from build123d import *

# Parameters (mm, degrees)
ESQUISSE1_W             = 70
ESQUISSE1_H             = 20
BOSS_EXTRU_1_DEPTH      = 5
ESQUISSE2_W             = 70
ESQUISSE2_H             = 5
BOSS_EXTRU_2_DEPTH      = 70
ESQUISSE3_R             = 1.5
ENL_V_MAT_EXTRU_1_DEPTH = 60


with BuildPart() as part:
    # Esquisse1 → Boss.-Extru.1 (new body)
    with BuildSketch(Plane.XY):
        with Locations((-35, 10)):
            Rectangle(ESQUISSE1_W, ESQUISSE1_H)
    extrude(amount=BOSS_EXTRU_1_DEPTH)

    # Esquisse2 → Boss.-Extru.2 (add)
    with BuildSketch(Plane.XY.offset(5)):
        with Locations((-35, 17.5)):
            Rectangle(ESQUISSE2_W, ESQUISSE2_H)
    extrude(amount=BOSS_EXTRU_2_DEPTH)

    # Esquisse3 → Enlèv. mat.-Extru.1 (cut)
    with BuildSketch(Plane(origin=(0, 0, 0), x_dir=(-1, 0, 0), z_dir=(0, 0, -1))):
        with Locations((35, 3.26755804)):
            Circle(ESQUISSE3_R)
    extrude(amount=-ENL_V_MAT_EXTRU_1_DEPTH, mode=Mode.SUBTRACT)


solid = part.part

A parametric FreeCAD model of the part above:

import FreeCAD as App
import Part
import Sketcher
from FreeCAD import Vector


def add_polygon(sketch, points):
    """Adds a closed chain of lines whose ends are joined by coincident constraints."""
    first, n = sketch.GeometryCount, len(points)
    for a, b in zip(points, points[1:] + points[:1]):
        sketch.addGeometry(Part.LineSegment(App.Vector(*a, 0), App.Vector(*b, 0)), False)
    for i in range(n):
        sketch.addConstraint(Sketcher.Constraint("Coincident", first + i, 2, first + (i + 1) % n, 1))

doc = App.newDocument("Part")
body = doc.addObject("PartDesign::Body", "Body")

# Sketch on XY plane
sketch1 = doc.addObject("Sketcher::SketchObject", "Sketch")
body.addObject(sketch1)
sketch1.AttachmentSupport = (doc.XY_Plane, [""])
sketch1.MapMode = "FlatFace"
add_polygon(sketch1, [(-70, 20), (-70, 0), (0, 0), (0, 20)])  # lines 0-3
sketch1.addConstraint([
    Sketcher.Constraint("Vertical", 0),
    Sketcher.Constraint("Horizontal", 1),
    Sketcher.Constraint("Vertical", 2),
    Sketcher.Constraint("Horizontal", 3),
    Sketcher.Constraint("Coincident", 1, 2, -1, 1),
    Sketcher.Constraint("DistanceX", 1, 1, 1, 2, 70.0),
    Sketcher.Constraint("DistanceY", 0, 2, 0, 1, 20.0),
])
pad1 = doc.addObject("PartDesign::Pad", "Pad")
body.addObject(pad1)
pad1.Profile = sketch1
pad1.Length = 5

# Sketch on XY plane
sketch2 = doc.addObject("Sketcher::SketchObject", "Sketch001")
body.addObject(sketch2)
sketch2.AttachmentSupport = (doc.XY_Plane, [""])
sketch2.MapMode = "FlatFace"
sketch2.AttachmentOffset = App.Placement(Vector(0, 0, 5), App.Rotation())
add_polygon(sketch2, [(-70, 20), (-70, 15), (0, 15), (0, 20)])  # lines 0-3
sketch2.addConstraint([
    Sketcher.Constraint("Vertical", 0),
    Sketcher.Constraint("Horizontal", 1),
    Sketcher.Constraint("Vertical", 2),
    Sketcher.Constraint("Horizontal", 3),
    Sketcher.Constraint("PointOnObject", 1, 2, -2),
    Sketcher.Constraint("DistanceX", 1, 1, 1, 2, 70.0),
    Sketcher.Constraint("DistanceY", 0, 2, 0, 1, 5.0),
    Sketcher.Constraint("DistanceY", -1, 1, 0, 2, 15.0),
])
pad2 = doc.addObject("PartDesign::Pad", "Pad001")
body.addObject(pad2)
pad2.Profile = sketch2
pad2.Length = 70

# Sketch on XY plane
sketch3 = doc.addObject("Sketcher::SketchObject", "Sketch002")
body.addObject(sketch3)
sketch3.AttachmentSupport = (doc.XY_Plane, [""])
sketch3.MapMode = "FlatFace"
sketch3.addGeometry(Part.Circle(Vector(-35, 3.267558, 0), Vector(0, 0, 1), 1.5), False)
sketch3.addConstraint([
    Sketcher.Constraint("Diameter", 0, 3.0),
    Sketcher.Constraint("DistanceX", 0, 3, -1, 1, 35.0),
    Sketcher.Constraint("DistanceY", -1, 1, 0, 3, 3.267558),
])
pocket1 = doc.addObject("PartDesign::Pocket", "Pocket")
body.addObject(pocket1)
pocket1.Profile = sketch3
pocket1.Length = 60
pocket1.Reversed = True

doc.recompute()
